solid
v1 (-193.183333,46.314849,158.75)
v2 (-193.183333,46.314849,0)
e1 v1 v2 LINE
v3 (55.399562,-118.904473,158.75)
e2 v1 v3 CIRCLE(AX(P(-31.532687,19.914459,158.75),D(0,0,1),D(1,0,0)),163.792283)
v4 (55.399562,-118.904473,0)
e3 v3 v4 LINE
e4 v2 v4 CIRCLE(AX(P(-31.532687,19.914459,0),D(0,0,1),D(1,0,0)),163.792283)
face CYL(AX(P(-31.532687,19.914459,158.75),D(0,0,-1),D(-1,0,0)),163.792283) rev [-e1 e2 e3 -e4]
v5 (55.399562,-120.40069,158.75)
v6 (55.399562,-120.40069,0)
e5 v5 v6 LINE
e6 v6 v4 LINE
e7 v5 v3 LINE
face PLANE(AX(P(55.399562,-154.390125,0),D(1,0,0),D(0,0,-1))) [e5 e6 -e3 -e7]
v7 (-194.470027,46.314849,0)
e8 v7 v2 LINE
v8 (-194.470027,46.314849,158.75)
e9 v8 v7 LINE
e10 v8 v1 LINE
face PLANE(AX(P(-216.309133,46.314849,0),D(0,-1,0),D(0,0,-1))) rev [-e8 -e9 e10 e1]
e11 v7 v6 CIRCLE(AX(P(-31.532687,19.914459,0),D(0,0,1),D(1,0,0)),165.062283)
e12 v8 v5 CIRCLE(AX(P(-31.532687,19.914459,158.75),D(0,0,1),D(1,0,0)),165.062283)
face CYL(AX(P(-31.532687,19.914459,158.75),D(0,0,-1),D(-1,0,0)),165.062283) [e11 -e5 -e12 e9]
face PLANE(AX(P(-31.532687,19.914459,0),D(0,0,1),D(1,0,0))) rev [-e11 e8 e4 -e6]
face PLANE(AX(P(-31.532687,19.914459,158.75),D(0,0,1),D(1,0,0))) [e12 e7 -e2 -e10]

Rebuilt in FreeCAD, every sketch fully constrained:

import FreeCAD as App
import Part
import Sketcher

V = App.Vector


def faces_at(feature, points):
    """Names of the faces that lie closest to the given points."""
    faces = feature.Shape.Faces
    near = lambda p: min(range(len(faces)), key=lambda i: faces[i].distToShape(Part.Vertex(*p))[0])
    return sorted({f"Face{near(p) + 1}" for p in points})


def add_polygon(sketch, points):
    """Adds a closed chain of lines whose ends are joined by coincident constraints."""
    first, n = sketch.GeometryCount, len(points)
    for a, b in zip(points, points[1:] + points[:1]):
        sketch.addGeometry(Part.LineSegment(App.Vector(*a, 0), App.Vector(*b, 0)), False)
    for i in range(n):
        sketch.addConstraint(Sketcher.Constraint("Coincident", first + i, 2, first + (i + 1) % n, 1))

doc = App.newDocument("Part")
params = doc.addObject("Spreadsheet::Sheet", "Params")
for row, (alias, value) in enumerate([
    ("pad1_length", "6.25 in"),
    ("thickness_wall", "0.05 in"),
    ("pocket1_length", "6.25 in"),
    ("pocket2_length", "6.25 in"),
], start=1):
    params.set(f"A{row}", alias)
    params.set(f"B{row}", "=" + value)
    params.setAlias(f"B{row}", alias)

body = doc.addObject("PartDesign::Body", "Body")

# Sketch on XY plane
sketch1 = body.newObject("Sketcher::SketchObject", "Sketch")
sketch1.AttachmentSupport = (doc.getObject("XY_Plane"), [""])
sketch1.MapMode = "FlatFace"
sketch1.addGeometry(Part.Circle(V(-31.532687, 19.914459, 0), V(0, 0, 1), 165.062283), False)
sketch1.addConstraint([
    Sketcher.Constraint("Diameter", 0, 330.124566),
    Sketcher.Constraint("DistanceY", -1, 1, 0, 3, 19.914459),
    Sketcher.Constraint("DistanceX", 0, 3, -1, 1, 31.532687),
])
pad1 = body.newObject("PartDesign::Pad", "Pad")
pad1.Profile = sketch1
pad1.setExpression("Length", "Params.pad1_length")
doc.recompute()

thickness = body.newObject("PartDesign::Thickness", "Thickness")
thickness.Base = (pad1, faces_at(pad1, [(-31.533, 19.914, 158.75), (-31.533, 19.914, 0)]))
thickness.setExpression("Value", "Params.thickness_wall")
thickness.Reversed = True
thickness.Join = "Intersection"

# Sketch on XY plane
sketch2 = body.newObject("Sketcher::SketchObject", "Sketch001")
sketch2.AttachmentSupport = (doc.getObject("XY_Plane"), [""])
sketch2.MapMode = "FlatFace"
sketch2.AttachmentOffset = App.Placement(V(0, 0, 6.25 * 25.4), App.Rotation())
add_polygon(sketch2, [(55.399562, 240.222988), (55.399562, -154.390125), (218.544291, -154.390125), (218.544291, 240.222988)])  # lines 0-3
sketch2.addConstraint([
    Sketcher.Constraint("Vertical", 0),
    Sketcher.Constraint("Horizontal", 1),
    Sketcher.Constraint("Vertical", 2),
    Sketcher.Constraint("Horizontal", 3),
    Sketcher.Constraint("DistanceX", 1, 1, 1, 2, 163.144729),
    Sketcher.Constraint("DistanceY", 0, 2, 0, 1, 394.613113),
    Sketcher.Constraint("DistanceX", -1, 1, 1, 2, 218.544291),
    Sketcher.Constraint("DistanceY", 0, 2, -1, 1, 154.390125),
])
pocket1 = body.newObject("PartDesign::Pocket", "Pocket")
pocket1.Profile = sketch2
pocket1.setExpression("Length", "Params.pocket1_length")

# Sketch on XY plane
sketch3 = body.newObject("Sketcher::SketchObject", "Sketch002")
sketch3.AttachmentSupport = (doc.getObject("XY_Plane"), [""])
sketch3.MapMode = "FlatFace"
sketch3.AttachmentOffset = App.Placement(V(0, 0, 6.25 * 25.4), App.Rotation())
add_polygon(sketch3, [(-216.309133, 207.024914), (-216.309133, 46.314849), (146.313267, 46.314849), (146.313267, 207.024914)])  # lines 0-3
sketch3.addConstraint([
    Sketcher.Constraint("Vertical", 0),
    Sketcher.Constraint("Horizontal", 1),
    Sketcher.Constraint("Vertical", 2),
    Sketcher.Constraint("Horizontal", 3),
    Sketcher.Constraint("DistanceX", 1, 1, 1, 2, 362.6224),
    Sketcher.Constraint("DistanceY", 0, 2, 0, 1, 160.710065),
    Sketcher.Constraint("DistanceY", -1, 1, 0, 2, 46.314849),
    Sketcher.Constraint("DistanceX", 0, 2, -1, 1, 216.309133),
])
pocket2 = body.newObject("PartDesign::Pocket", "Pocket001")
pocket2.Profile = sketch3
pocket2.setExpression("Length", "Params.pocket2_length")

doc.recompute()
